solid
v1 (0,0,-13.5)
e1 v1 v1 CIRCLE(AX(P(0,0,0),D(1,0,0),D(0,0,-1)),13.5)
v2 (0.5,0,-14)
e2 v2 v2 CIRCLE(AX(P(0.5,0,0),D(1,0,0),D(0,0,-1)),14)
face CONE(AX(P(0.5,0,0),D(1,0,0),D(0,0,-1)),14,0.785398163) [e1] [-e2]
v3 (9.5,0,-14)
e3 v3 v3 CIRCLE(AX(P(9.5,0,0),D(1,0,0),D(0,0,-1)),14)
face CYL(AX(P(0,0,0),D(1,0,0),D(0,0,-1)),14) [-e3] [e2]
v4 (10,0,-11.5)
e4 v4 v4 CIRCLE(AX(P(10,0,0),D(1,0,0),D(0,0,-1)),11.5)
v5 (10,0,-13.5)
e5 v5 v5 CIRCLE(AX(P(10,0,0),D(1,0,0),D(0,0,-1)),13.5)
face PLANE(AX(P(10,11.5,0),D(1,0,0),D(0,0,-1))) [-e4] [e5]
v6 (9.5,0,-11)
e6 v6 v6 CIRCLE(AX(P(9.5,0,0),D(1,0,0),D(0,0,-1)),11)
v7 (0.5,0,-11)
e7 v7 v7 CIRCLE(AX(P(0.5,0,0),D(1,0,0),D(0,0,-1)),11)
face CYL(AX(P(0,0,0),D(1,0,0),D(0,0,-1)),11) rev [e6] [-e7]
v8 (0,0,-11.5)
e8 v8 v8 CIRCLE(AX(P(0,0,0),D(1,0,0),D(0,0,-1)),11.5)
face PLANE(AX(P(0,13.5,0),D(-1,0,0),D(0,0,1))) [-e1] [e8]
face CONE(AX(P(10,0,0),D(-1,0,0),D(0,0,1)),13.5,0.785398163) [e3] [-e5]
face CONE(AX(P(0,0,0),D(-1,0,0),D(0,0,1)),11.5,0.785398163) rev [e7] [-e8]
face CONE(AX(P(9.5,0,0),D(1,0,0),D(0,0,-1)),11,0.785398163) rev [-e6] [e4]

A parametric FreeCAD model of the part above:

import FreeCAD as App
import Part
import Sketcher
Q = App.Units.Quantity


def add_polygon(sketch, points):
    """Adds a closed chain of lines whose ends are joined by coincident constraints."""
    first, n = sketch.GeometryCount, len(points)
    for a, b in zip(points, points[1:] + points[:1]):
        sketch.addGeometry(Part.LineSegment(App.Vector(*a, 0), App.Vector(*b, 0)), False)
    for i in range(n):
        sketch.addConstraint(Sketcher.Constraint("Coincident", first + i, 2, first + (i + 1) % n, 1))

doc = App.newDocument("Part")
params = doc.addObject("Spreadsheet::Sheet", "Params")
for row, (alias, value) in enumerate([
    ("sketch1_width", "9 mm"),
    ("sketch1_height", "2 mm"),
    ("revolution_angle", "360 deg"),
], start=1):
    params.set(f"A{row}", alias)
    params.set(f"B{row}", "=" + value)
    params.setAlias(f"B{row}", alias)

body = doc.addObject("PartDesign::Body", "Body")

# Sketch on XY plane
sketch1 = body.newObject("Sketcher::SketchObject", "Sketch")
sketch1.AttachmentSupport = (doc.getObject("XY_Plane"), [""])
sketch1.MapMode = "FlatFace"
add_polygon(sketch1, [(0, 11.5), (0.5, 11), (9.5, 11), (10, 11.5), (10, 13.5), (9.5, 14), (0.5, 14), (0, 13.5)])  # lines 0-7
sketch1.addConstraint(Sketcher.Constraint("Horizontal", 1))
sketch1.addConstraint(Sketcher.Constraint("Vertical", 3))
sketch1.addConstraint(Sketcher.Constraint("Horizontal", 5))
sketch1.addConstraint(Sketcher.Constraint("Vertical", 7))
sketch1.addConstraint(Sketcher.Constraint("PointOnObject", 6, 2, -2))
sketch1.addConstraint(Sketcher.Constraint("Perpendicular", 0, 2))
sketch1.addConstraint(Sketcher.Constraint("Perpendicular", 2, 4))
sketch1.addConstraint(Sketcher.Constraint("Perpendicular", 4, 6))
sketch1.addConstraint(Sketcher.Constraint("Horizontal", 3, 2, 6, 2))
sketch1.addConstraint(Sketcher.Constraint("Horizontal", 2, 2, 7, 2))
sketch1.addConstraint(Sketcher.Constraint("Vertical", 1, 2, 4, 2))
sketch1.addConstraint(Sketcher.Constraint("Vertical", 0, 2, 5, 2))
sketch1.addConstraint(Sketcher.Constraint("DistanceX", 1, 1, 1, 2, Q("9 mm")))
sketch1.addConstraint(Sketcher.Constraint("DistanceY", 3, 1, 3, 2, Q("2 mm")))
sketch1.addConstraint(Sketcher.Constraint("DistanceY", -1, 1, 0, 2, Q("11 mm")))
sketch1.addConstraint(Sketcher.Constraint("DistanceX", -1, 1, 2, 2, Q("10 mm")))
sketch1.setExpression("Constraints[20]", "Params.sketch1_width")
sketch1.setExpression("Constraints[21]", "Params.sketch1_height")
revolution = body.newObject("PartDesign::Revolution", "Revolution")
revolution.Profile = sketch1
revolution.ReferenceAxis = (sketch1, ["H_Axis"])
revolution.setExpression("Angle", "Params.revolution_angle")

doc.recompute()
